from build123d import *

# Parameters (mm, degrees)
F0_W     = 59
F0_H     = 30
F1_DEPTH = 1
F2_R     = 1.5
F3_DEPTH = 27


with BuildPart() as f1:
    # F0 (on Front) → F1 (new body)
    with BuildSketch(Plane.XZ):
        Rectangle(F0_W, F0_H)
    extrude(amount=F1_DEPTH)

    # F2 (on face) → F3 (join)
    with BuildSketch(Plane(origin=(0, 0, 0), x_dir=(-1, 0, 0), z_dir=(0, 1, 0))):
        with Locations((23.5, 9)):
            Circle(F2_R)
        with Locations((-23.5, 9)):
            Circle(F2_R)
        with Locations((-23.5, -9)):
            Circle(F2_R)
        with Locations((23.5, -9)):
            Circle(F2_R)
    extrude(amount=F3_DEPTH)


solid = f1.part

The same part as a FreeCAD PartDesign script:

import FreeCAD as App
import Part
import Sketcher
Q = App.Units.Quantity


def add_polygon(sketch, points):
    """Adds a closed chain of lines whose ends are joined by coincident constraints."""
    first, n = sketch.GeometryCount, len(points)
    for a, b in zip(points, points[1:] + points[:1]):
        sketch.addGeometry(Part.LineSegment(App.Vector(*a, 0), App.Vector(*b, 0)), False)
    for i in range(n):
        sketch.addConstraint(Sketcher.Constraint("Coincident", first + i, 2, first + (i + 1) % n, 1))

doc = App.newDocument("Part")
body = doc.addObject("PartDesign::Body", "Body")

sketch1 = body.newObject("Sketcher::SketchObject", "Sketch")
sketch1.AttachmentSupport = (doc.getObject("XZ_Plane"), [""])
sketch1.MapMode = "FlatFace"
add_polygon(sketch1, [(-30, 15), (-30, -15), (30, -15), (30, 15)])
sketch1.addConstraint([
    Sketcher.Constraint("Vertical", 0),
    Sketcher.Constraint("Horizontal", 1),
    Sketcher.Constraint("Vertical", 2),
    Sketcher.Constraint("Horizontal", 3),
    Sketcher.Constraint("Symmetric", 0, 2, 2, 2, -1, 1),
    Sketcher.Constraint("DistanceX", 1, 1, 1, 2, Q("59 mm")),
    Sketcher.Constraint("DistanceY", 0, 2, 0, 1, Q("30 mm")),
])
pad1 = body.newObject("PartDesign::Pad", "Pad")
pad1.Profile = sketch1
pad1.Length = 1

sketch2 = body.newObject("Sketcher::SketchObject", "Sketch001")
sketch2.AttachmentSupport = (doc.getObject("XZ_Plane"), [""])
sketch2.MapMode = "FlatFace"
sketch2.addGeometry([
    Part.Circle(App.Vector(-23.5, 9, 0), App.Vector(0, 0, 1), 1.5),
    Part.Circle(App.Vector(23.5, 9, 0), App.Vector(0, 0, 1), 1.5),
    Part.Circle(App.Vector(23.5, -9, 0), App.Vector(0, 0, 1), 1.5),
    Part.Circle(App.Vector(-23.5, -9, 0), App.Vector(0, 0, 1), 1.5),
], False)
sketch2.addConstraint([
    Sketcher.Constraint("Equal", 0, 1),
    Sketcher.Constraint("Equal", 1, 2),
    Sketcher.Constraint("Equal", 2, 3),
    Sketcher.Constraint("Symmetric", 0, 3, 2, 3, -1, 1),
    Sketcher.Constraint("Symmetric", 1, 3, 3, 3, -1, 1),
    Sketcher.Constraint("Symmetric", 0, 3, 1, 3, -2),
    Sketcher.Constraint("Diameter", 0, Q("3 mm")),
    Sketcher.Constraint("DistanceY", -1, 1, 0, 3, Q("9 mm")),
    Sketcher.Constraint("DistanceX", 0, 3, 1, 3, Q("47 mm")),
])
pad2 = body.newObject("PartDesign::Pad", "Pad001")
pad2.Profile = sketch2
pad2.Length = 27
pad2.Reversed = True

doc.recompute()
